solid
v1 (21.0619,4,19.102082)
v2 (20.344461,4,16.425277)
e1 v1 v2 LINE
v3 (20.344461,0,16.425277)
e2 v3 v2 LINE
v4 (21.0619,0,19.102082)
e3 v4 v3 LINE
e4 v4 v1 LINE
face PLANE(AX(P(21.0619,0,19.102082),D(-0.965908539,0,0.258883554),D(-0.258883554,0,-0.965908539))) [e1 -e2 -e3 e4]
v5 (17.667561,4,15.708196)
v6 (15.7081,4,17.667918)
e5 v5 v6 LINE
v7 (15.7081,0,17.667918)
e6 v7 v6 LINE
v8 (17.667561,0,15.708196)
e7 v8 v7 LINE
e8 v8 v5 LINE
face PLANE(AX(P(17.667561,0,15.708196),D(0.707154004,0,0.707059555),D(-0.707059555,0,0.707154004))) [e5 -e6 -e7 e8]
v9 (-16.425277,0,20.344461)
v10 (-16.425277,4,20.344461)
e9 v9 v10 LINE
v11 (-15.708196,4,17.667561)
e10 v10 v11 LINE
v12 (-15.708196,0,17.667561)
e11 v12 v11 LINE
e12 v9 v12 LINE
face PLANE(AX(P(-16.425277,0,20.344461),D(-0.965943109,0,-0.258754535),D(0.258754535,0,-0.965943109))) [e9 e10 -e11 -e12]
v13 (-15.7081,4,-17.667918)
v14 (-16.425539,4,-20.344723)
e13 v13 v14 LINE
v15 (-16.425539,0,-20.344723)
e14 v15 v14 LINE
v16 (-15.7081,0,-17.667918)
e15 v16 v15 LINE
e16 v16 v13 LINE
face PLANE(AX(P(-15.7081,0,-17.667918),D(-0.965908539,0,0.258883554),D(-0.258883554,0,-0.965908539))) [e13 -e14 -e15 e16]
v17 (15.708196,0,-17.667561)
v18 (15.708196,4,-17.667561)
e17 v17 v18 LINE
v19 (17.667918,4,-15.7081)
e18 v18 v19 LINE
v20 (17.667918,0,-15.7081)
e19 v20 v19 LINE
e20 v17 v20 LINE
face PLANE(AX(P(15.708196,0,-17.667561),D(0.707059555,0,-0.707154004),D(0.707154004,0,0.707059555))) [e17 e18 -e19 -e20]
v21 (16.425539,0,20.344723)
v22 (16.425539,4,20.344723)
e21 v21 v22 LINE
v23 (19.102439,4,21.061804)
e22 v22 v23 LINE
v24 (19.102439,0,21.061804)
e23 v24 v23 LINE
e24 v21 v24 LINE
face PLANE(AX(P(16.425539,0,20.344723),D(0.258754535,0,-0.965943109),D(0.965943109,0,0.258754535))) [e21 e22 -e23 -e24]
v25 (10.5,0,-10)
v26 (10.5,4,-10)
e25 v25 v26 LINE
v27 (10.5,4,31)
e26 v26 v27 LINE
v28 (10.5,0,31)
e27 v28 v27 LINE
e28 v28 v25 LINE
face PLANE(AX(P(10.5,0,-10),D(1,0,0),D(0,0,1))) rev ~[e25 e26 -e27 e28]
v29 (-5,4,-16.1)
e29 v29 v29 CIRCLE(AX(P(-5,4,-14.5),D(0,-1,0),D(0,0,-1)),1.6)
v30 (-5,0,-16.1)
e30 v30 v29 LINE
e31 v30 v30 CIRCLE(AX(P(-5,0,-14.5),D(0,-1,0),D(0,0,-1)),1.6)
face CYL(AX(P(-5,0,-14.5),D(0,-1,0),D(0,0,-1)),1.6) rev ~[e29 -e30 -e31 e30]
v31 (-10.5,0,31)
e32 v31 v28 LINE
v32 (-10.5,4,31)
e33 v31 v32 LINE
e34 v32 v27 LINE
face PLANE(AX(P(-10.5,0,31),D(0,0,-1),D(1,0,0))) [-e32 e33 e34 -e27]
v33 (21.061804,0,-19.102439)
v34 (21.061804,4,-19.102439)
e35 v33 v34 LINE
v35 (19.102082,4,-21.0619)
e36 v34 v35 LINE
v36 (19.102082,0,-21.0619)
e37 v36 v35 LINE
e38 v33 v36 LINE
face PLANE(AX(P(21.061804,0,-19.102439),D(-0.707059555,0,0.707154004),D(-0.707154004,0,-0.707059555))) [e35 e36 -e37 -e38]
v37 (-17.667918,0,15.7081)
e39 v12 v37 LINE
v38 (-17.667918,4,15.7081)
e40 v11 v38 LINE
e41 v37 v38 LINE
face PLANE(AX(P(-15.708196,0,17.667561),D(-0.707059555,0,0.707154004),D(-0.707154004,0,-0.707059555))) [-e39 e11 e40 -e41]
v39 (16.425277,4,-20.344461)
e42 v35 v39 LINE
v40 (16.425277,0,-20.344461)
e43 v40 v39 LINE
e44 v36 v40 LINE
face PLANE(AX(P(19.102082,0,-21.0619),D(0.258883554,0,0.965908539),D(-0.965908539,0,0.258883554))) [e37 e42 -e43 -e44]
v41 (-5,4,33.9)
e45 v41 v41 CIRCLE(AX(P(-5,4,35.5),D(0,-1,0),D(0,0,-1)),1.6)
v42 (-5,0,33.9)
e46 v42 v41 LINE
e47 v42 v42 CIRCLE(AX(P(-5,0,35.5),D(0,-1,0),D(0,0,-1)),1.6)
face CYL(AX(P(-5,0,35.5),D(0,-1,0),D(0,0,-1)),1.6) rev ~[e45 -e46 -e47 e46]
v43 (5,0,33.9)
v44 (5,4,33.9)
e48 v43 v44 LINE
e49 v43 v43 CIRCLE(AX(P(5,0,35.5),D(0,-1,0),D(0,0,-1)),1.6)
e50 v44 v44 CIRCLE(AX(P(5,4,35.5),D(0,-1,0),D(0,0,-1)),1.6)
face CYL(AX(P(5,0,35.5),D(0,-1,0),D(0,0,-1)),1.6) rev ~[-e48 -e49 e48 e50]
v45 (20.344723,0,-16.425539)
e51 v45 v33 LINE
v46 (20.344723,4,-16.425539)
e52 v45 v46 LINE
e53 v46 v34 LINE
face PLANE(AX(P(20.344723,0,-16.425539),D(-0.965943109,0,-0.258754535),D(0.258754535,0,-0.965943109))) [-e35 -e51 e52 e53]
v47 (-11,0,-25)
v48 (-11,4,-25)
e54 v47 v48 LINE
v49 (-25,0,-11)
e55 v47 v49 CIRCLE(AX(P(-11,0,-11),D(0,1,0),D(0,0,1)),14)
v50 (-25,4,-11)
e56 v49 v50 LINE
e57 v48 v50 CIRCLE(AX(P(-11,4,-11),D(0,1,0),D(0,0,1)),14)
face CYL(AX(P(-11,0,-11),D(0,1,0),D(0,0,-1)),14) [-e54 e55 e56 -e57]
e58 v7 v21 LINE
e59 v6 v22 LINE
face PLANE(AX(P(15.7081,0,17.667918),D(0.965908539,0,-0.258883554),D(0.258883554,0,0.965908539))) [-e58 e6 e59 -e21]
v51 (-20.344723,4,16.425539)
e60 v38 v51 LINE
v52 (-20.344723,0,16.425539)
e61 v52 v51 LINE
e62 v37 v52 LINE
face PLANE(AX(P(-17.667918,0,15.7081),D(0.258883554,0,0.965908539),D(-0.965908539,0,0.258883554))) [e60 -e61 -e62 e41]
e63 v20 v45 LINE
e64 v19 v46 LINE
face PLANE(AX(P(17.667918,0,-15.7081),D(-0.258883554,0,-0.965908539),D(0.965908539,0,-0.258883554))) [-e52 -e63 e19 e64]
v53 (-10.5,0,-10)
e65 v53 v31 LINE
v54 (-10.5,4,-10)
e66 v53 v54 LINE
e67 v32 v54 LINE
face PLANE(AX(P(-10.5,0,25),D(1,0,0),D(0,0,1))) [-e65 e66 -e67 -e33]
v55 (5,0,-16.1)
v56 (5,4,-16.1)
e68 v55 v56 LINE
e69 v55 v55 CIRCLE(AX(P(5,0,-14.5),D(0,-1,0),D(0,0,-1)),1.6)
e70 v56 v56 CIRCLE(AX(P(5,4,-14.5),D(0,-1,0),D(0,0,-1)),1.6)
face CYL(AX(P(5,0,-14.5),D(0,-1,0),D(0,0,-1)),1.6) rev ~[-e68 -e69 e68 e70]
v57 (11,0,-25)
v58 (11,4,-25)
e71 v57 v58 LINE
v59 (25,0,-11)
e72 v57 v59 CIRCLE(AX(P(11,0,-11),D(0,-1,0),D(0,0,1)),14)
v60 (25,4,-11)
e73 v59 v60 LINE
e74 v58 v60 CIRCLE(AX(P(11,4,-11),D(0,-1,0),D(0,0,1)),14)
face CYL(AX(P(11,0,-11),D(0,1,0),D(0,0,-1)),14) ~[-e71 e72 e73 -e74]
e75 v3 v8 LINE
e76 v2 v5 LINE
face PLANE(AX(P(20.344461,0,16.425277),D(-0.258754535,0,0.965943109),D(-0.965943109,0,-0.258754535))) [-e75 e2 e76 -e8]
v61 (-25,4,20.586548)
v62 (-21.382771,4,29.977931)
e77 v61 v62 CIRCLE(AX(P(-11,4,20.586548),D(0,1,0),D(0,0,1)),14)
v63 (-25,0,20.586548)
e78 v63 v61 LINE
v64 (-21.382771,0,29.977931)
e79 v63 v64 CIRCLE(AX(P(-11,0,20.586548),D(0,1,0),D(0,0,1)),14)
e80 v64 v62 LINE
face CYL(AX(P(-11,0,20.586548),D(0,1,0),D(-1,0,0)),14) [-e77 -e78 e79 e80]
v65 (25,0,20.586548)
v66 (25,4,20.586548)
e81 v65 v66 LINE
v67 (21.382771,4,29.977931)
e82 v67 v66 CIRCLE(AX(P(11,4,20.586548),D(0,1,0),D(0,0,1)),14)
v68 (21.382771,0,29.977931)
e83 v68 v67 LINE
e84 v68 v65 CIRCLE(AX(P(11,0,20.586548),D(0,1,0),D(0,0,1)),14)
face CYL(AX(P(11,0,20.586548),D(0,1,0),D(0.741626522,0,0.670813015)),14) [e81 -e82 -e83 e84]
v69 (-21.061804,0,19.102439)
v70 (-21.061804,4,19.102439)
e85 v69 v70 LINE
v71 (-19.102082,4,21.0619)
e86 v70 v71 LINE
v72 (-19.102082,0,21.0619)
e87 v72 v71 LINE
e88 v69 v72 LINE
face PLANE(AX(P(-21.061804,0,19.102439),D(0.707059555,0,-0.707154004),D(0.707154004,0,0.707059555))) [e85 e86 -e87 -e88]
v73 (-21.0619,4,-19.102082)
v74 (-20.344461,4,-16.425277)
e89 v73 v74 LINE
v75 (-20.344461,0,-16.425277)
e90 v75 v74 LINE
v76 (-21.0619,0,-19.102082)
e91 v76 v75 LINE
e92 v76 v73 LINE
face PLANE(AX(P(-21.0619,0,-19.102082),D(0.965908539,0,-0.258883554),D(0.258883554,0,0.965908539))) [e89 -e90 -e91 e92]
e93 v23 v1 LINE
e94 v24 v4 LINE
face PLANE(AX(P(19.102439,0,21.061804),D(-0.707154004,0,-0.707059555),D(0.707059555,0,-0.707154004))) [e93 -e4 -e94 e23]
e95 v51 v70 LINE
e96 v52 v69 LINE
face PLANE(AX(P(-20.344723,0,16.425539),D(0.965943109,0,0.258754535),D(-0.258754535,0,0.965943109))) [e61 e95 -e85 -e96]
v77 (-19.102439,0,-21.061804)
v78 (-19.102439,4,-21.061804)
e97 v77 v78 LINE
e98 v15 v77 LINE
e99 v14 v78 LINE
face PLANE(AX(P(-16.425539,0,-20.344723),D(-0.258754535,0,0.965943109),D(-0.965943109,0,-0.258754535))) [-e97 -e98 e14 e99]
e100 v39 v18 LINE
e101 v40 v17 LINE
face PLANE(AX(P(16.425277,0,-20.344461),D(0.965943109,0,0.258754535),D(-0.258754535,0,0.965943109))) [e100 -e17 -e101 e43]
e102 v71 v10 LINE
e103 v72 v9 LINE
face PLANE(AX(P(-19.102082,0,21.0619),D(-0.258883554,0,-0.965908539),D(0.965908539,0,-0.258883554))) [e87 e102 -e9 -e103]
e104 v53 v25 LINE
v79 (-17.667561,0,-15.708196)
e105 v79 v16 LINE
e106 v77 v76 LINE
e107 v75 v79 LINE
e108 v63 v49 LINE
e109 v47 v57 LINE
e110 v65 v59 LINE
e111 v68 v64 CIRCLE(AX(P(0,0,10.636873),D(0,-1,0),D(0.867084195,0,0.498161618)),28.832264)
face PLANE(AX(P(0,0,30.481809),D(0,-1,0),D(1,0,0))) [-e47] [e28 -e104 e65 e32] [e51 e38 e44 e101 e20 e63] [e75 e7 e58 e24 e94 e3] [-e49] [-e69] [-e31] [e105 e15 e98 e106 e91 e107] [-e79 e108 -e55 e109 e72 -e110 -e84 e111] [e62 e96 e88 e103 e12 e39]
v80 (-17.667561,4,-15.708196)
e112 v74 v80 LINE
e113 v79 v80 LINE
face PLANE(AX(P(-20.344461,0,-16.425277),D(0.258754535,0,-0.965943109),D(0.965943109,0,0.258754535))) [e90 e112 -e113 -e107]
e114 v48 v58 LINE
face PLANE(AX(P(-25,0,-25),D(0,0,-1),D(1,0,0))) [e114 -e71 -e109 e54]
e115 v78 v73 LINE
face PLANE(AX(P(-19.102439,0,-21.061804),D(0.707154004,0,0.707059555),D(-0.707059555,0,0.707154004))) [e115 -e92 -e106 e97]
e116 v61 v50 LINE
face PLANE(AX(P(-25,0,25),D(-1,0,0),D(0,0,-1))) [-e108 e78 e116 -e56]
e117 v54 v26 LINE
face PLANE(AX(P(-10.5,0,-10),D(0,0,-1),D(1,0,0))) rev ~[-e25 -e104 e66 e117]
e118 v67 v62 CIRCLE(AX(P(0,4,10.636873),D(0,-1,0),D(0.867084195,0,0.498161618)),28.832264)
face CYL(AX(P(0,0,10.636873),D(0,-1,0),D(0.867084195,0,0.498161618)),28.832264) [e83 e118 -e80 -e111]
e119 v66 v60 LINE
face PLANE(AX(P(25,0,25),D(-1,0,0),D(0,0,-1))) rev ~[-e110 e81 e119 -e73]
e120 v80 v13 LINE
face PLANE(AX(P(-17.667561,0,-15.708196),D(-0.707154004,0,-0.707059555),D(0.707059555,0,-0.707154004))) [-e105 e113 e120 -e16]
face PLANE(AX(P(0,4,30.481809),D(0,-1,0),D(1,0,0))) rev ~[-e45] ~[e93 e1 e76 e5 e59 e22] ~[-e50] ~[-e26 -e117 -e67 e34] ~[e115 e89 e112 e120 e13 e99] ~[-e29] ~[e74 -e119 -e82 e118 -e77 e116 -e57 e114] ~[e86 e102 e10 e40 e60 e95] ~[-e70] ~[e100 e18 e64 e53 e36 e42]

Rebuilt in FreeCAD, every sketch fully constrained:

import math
import FreeCAD as App
import Part
import Sketcher

V = App.Vector


def edges_at(feature, points):
    """Names of the edges that pass closest to the given points."""
    edges = feature.Shape.Edges
    near = lambda p: min(range(len(edges)), key=lambda i: edges[i].distToShape(Part.Vertex(*p))[0])
    return sorted({f"Edge{near(p) + 1}" for p in points})


def add_polygon(sketch, points):
    """Adds a closed chain of lines whose ends are joined by coincident constraints."""
    first, n = sketch.GeometryCount, len(points)
    for a, b in zip(points, points[1:] + points[:1]):
        sketch.addGeometry(Part.LineSegment(App.Vector(*a, 0), App.Vector(*b, 0)), False)
    for i in range(n):
        sketch.addConstraint(Sketcher.Constraint("Coincident", first + i, 2, first + (i + 1) % n, 1))

doc = App.newDocument("Part")
params = doc.addObject("Spreadsheet::Sheet", "Params")
for row, (alias, value) in enumerate([
    ("sketch1_width", "50 mm"),
    ("pad1_length", "4 mm"),
    ("sketch2_diameter", "3.2 mm"),
    ("sketch2_width", "21 mm"),
    ("sketch2_height", "6 mm"),
    ("sketch2_width2", "14.5 mm"),
    ("pad2_length", "4 mm"),
    ("sketch3_diameter", "3.2 mm"),
    ("sketch3_width", "21 mm"),
    ("sketch3_height", "35 mm"),
    ("pocket1_length", "4 mm"),
    ("fillet_radius", "14 mm"),
    ("fillet2_radius", "14 mm"),
], start=1):
    params.set(f"A{row}", alias)
    params.set(f"B{row}", "=" + value)
    params.setAlias(f"B{row}", alias)

body = doc.addObject("PartDesign::Body", "Body")

# Sketch on XZ plane
sketch1 = body.newObject("Sketcher::SketchObject", "Sketch")
sketch1.AttachmentSupport = (doc.getObject("XZ_Plane"), [""])
sketch1.MapMode = "FlatFace"
add_polygon(sketch1, [(-25, -25), (-25, 25), (25, 25), (25, -25)])  # lines 0-3
add_polygon(sketch1, [(-17.7, 15.7), (-15.7, 17.7), (-16.4, 20.3), (-19.1, 21.1), (-21.1, 19.1), (-20.3, 16.4)])  # lines 4-9
add_polygon(sketch1, [(15.7, 17.7), (17.7, 15.7), (20.3, 16.4), (21.1, 19.1), (19.1, 21.1), (16.4, 20.3)])  # lines 10-15
add_polygon(sketch1, [(-15.7, -17.7), (-17.7, -15.7), (-20.3, -16.4), (-21.1, -19.1), (-19.1, -21.1), (-16.4, -20.3)])  # lines 16-21
add_polygon(sketch1, [(17.7, -15.7), (15.7, -17.7), (16.4, -20.3), (19.1, -21.1), (21.1, -19.1), (20.3, -16.4)])  # lines 22-27
sketch1.addConstraint(Sketcher.Constraint("Vertical", 0))
sketch1.addConstraint(Sketcher.Constraint("Horizontal", 1))
sketch1.addConstraint(Sketcher.Constraint("Vertical", 2))
sketch1.addConstraint(Sketcher.Constraint("Horizontal", 3))
sketch1.addConstraint(Sketcher.Constraint("Symmetric", 0, 2, 2, 2, -1, 1))
sketch1.addConstraint(Sketcher.Constraint("Symmetric", 10, 2, 16, 2, -1, 1))
sketch1.addConstraint(Sketcher.Constraint("Symmetric", 11, 2, 17, 2, -1, 1))
sketch1.addConstraint(Sketcher.Constraint("Symmetric", 12, 2, 18, 2, -1, 1))
sketch1.addConstraint(Sketcher.Constraint("Symmetric", 13, 2, 19, 2, -1, 1))
sketch1.addConstraint(Sketcher.Constraint("Symmetric", 14, 2, 20, 2, -1, 1))
sketch1.addConstraint(Sketcher.Constraint("Symmetric", 15, 2, 21, 2, -1, 1))
sketch1.addConstraint(Sketcher.Constraint("Symmetric", 4, 2, 22, 2, -1, 1))
sketch1.addConstraint(Sketcher.Constraint("Symmetric", 5, 2, 23, 2, -1, 1))
sketch1.addConstraint(Sketcher.Constraint("Symmetric", 6, 2, 24, 2, -1, 1))
sketch1.addConstraint(Sketcher.Constraint("Symmetric", 7, 2, 25, 2, -1, 1))
sketch1.addConstraint(Sketcher.Constraint("Symmetric", 8, 2, 26, 2, -1, 1))
sketch1.addConstraint(Sketcher.Constraint("Symmetric", 9, 2, 27, 2, -1, 1))
sketch1.addConstraint(Sketcher.Constraint("Parallel", 4, 7))
sketch1.addConstraint(Sketcher.Constraint("Parallel", 5, 8))
sketch1.addConstraint(Sketcher.Constraint("Parallel", 6, 9))
sketch1.addConstraint(Sketcher.Constraint("Perpendicular", 7, 10))
sketch1.addConstraint(Sketcher.Constraint("Perpendicular", 8, 11))
sketch1.addConstraint(Sketcher.Constraint("Perpendicular", 9, 12))
sketch1.addConstraint(Sketcher.Constraint("Parallel", 10, 13))
sketch1.addConstraint(Sketcher.Constraint("Parallel", 11, 14))
sketch1.addConstraint(Sketcher.Constraint("Parallel", 12, 15))
sketch1.addConstraint(Sketcher.Constraint("Equal", 3, 0))
sketch1.addConstraint(Sketcher.Constraint("Equal", 4, 5))
sketch1.addConstraint(Sketcher.Constraint("Equal", 5, 6))
sketch1.addConstraint(Sketcher.Constraint("Equal", 6, 7))
sketch1.addConstraint(Sketcher.Constraint("Equal", 9, 10))
sketch1.addConstraint(Sketcher.Constraint("Equal", 10, 11))
sketch1.addConstraint(Sketcher.Constraint("Equal", 11, 12))
sketch1.addConstraint(Sketcher.Constraint("Equal", 12, 13))
sketch1.addConstraint(Sketcher.Constraint("DistanceX", 1, 1, 1, 2, 50.0))
sketch1.addConstraint(Sketcher.Constraint("DistanceY", -1, 1, 6, 2, 21.0619))
sketch1.addConstraint(Sketcher.Constraint("DistanceY", -1, 1, 9, 2, 15.7081))
sketch1.addConstraint(Sketcher.Constraint("DistanceX", -1, 1, 12, 2, 21.0619))
sketch1.addConstraint(Sketcher.Constraint("DistanceY", 4, 2, 5, 2, 2.6769))
sketch1.addConstraint(Sketcher.Constraint("Distance", 4, 2.771281))
sketch1.addConstraint(Sketcher.Constraint("DistanceY", -1, 1, 4, 2, 17.667561))
sketch1.addConstraint(Sketcher.Constraint("DistanceX", 6, 2, -1, 1, 19.102082))
sketch1.addConstraint(Sketcher.Constraint("DistanceY", -1, 1, 12, 2, 19.102082))
sketch1.setExpression("Constraints[62]", "Params.sketch1_width")
pad1 = body.newObject("PartDesign::Pad", "Pad")
pad1.Profile = sketch1
pad1.setExpression("Length", "Params.pad1_length")
pad1.Reversed = True

# Sketch on XZ plane
sketch2 = body.newObject("Sketcher::SketchObject", "Sketch001")
sketch2.AttachmentSupport = (doc.getObject("XZ_Plane"), [""])
sketch2.MapMode = "FlatFace"
sketch2.addGeometry(Part.ArcOfCircle(Part.Circle(V(0, 10.6, 0), V(0, 0, 1), 28.8), math.radians(30), math.radians(150)), False)
sketch2.addGeometry(Part.LineSegment(V(-25, 25, 0), V(-10.5, 25, 0)), False)
sketch2.addGeometry(Part.LineSegment(V(-10.5, 25, 0), V(-10.5, 31, 0)), False)
sketch2.addGeometry(Part.LineSegment(V(-10.5, 31, 0), V(10.5, 31, 0)), False)
sketch2.addGeometry(Part.LineSegment(V(10.5, 31, 0), V(10.5, 25, 0)), False)
sketch2.addGeometry(Part.LineSegment(V(10.5, 25, 0), V(25, 25, 0)), False)
sketch2.addGeometry(Part.Circle(V(-5, 35.5, 0), V(0, 0, 1), 1.6), False)
sketch2.addGeometry(Part.Circle(V(5, 35.5, 0), V(0, 0, 1), 1.6), False)
sketch2.addConstraint(Sketcher.Constraint("Coincident", 0, 2, 1, 1))
sketch2.addConstraint(Sketcher.Constraint("Coincident", 1, 2, 2, 1))
sketch2.addConstraint(Sketcher.Constraint("Coincident", 2, 2, 3, 1))
sketch2.addConstraint(Sketcher.Constraint("Coincident", 3, 2, 4, 1))
sketch2.addConstraint(Sketcher.Constraint("Coincident", 4, 2, 5, 1))
sketch2.addConstraint(Sketcher.Constraint("Coincident", 5, 2, 0, 1))
sketch2.addConstraint(Sketcher.Constraint("Horizontal", 1))
sketch2.addConstraint(Sketcher.Constraint("Vertical", 2))
sketch2.addConstraint(Sketcher.Constraint("Horizontal", 3))
sketch2.addConstraint(Sketcher.Constraint("Vertical", 4))
sketch2.addConstraint(Sketcher.Constraint("Horizontal", 5))
sketch2.addConstraint(Sketcher.Constraint("Equal", 6, 7))
sketch2.addConstraint(Sketcher.Constraint("Symmetric", 6, 3, 7, 3, -2))
sketch2.addConstraint(Sketcher.Constraint("Symmetric", 1, 2, 4, 2, -2))
sketch2.addConstraint(Sketcher.Constraint("PointOnObject", 0, 3, -2))
sketch2.addConstraint(Sketcher.Constraint("Diameter", 6, 3.2))
sketch2.addConstraint(Sketcher.Constraint("DistanceX", 3, 1, 3, 2, 21.0))
sketch2.addConstraint(Sketcher.Constraint("DistanceY", 2, 1, 2, 2, 6.0))
sketch2.addConstraint(Sketcher.Constraint("DistanceX", 1, 1, 1, 2, 14.5))
sketch2.addConstraint(Sketcher.Constraint("DistanceX", 6, 3, -1, 1, 5.0))
sketch2.addConstraint(Sketcher.Constraint("DistanceY", -1, 1, 0, 2, 25.0))
sketch2.addConstraint(Sketcher.Constraint("DistanceY", -1, 1, 6, 3, 35.5))
sketch2.addConstraint(Sketcher.Constraint("Radius", 0, 28.832263))
sketch2.setExpression("Constraints[15]", "Params.sketch2_diameter")
sketch2.setExpression("Constraints[16]", "Params.sketch2_width")
sketch2.setExpression("Constraints[17]", "Params.sketch2_height")
sketch2.setExpression("Constraints[18]", "Params.sketch2_width2")
pad2 = body.newObject("PartDesign::Pad", "Pad001")
pad2.Profile = sketch2
pad2.setExpression("Length", "Params.pad2_length")
pad2.Reversed = True

# Sketch on XZ plane
sketch3 = body.newObject("Sketcher::SketchObject", "Sketch002")
sketch3.AttachmentSupport = (doc.getObject("XZ_Plane"), [""])
sketch3.MapMode = "FlatFace"
add_polygon(sketch3, [(-10.5, 25), (-10.5, -10), (10.5, -10), (10.5, 25)])  # lines 0-3
sketch3.addGeometry(Part.Circle(V(-5, -14.5, 0), V(0, 0, 1), 1.6), False)  # 4
sketch3.addGeometry(Part.Circle(V(5, -14.5, 0), V(0, 0, 1), 1.6), False)  # 5
sketch3.addConstraint(Sketcher.Constraint("Vertical", 0))
sketch3.addConstraint(Sketcher.Constraint("Horizontal", 1))
sketch3.addConstraint(Sketcher.Constraint("Vertical", 2))
sketch3.addConstraint(Sketcher.Constraint("Horizontal", 3))
sketch3.addConstraint(Sketcher.Constraint("Equal", 4, 5))
sketch3.addConstraint(Sketcher.Constraint("Symmetric", 4, 3, 5, 3, -2))
sketch3.addConstraint(Sketcher.Constraint("Diameter", 4, 3.2))
sketch3.addConstraint(Sketcher.Constraint("DistanceX", 1, 1, 1, 2, 21.0))
sketch3.addConstraint(Sketcher.Constraint("DistanceY", 0, 2, 0, 1, 35.0))
sketch3.addConstraint(Sketcher.Constraint("DistanceX", 4, 3, -1, 1, 5.0))
sketch3.addConstraint(Sketcher.Constraint("DistanceY", 0, 2, -1, 1, 10.0))
sketch3.addConstraint(Sketcher.Constraint("DistanceY", 4, 3, -1, 1, 14.5))
sketch3.addConstraint(Sketcher.Constraint("DistanceX", 0, 2, -1, 1, 10.5))
sketch3.setExpression("Constraints[10]", "Params.sketch3_diameter")
sketch3.setExpression("Constraints[11]", "Params.sketch3_width")
sketch3.setExpression("Constraints[12]", "Params.sketch3_height")
pocket1 = body.newObject("PartDesign::Pocket", "Pocket")
pocket1.Profile = sketch3
pocket1.setExpression("Length", "Params.pocket1_length")
doc.recompute()

fillet = body.newObject("PartDesign::Fillet", "Fillet")
fillet.Base = (pocket1, edges_at(pocket1, [(-25, 2, -25), (25, 2, -25)]))
fillet.setExpression("Radius", "Params.fillet_radius")
doc.recompute()

fillet2 = body.newObject("PartDesign::Fillet", "Fillet001")
fillet2.Base = (fillet, edges_at(fillet, [(25, 2, 25), (-25, 2, 25)]))
fillet2.setExpression("Radius", "Params.fillet2_radius")

doc.recompute()
